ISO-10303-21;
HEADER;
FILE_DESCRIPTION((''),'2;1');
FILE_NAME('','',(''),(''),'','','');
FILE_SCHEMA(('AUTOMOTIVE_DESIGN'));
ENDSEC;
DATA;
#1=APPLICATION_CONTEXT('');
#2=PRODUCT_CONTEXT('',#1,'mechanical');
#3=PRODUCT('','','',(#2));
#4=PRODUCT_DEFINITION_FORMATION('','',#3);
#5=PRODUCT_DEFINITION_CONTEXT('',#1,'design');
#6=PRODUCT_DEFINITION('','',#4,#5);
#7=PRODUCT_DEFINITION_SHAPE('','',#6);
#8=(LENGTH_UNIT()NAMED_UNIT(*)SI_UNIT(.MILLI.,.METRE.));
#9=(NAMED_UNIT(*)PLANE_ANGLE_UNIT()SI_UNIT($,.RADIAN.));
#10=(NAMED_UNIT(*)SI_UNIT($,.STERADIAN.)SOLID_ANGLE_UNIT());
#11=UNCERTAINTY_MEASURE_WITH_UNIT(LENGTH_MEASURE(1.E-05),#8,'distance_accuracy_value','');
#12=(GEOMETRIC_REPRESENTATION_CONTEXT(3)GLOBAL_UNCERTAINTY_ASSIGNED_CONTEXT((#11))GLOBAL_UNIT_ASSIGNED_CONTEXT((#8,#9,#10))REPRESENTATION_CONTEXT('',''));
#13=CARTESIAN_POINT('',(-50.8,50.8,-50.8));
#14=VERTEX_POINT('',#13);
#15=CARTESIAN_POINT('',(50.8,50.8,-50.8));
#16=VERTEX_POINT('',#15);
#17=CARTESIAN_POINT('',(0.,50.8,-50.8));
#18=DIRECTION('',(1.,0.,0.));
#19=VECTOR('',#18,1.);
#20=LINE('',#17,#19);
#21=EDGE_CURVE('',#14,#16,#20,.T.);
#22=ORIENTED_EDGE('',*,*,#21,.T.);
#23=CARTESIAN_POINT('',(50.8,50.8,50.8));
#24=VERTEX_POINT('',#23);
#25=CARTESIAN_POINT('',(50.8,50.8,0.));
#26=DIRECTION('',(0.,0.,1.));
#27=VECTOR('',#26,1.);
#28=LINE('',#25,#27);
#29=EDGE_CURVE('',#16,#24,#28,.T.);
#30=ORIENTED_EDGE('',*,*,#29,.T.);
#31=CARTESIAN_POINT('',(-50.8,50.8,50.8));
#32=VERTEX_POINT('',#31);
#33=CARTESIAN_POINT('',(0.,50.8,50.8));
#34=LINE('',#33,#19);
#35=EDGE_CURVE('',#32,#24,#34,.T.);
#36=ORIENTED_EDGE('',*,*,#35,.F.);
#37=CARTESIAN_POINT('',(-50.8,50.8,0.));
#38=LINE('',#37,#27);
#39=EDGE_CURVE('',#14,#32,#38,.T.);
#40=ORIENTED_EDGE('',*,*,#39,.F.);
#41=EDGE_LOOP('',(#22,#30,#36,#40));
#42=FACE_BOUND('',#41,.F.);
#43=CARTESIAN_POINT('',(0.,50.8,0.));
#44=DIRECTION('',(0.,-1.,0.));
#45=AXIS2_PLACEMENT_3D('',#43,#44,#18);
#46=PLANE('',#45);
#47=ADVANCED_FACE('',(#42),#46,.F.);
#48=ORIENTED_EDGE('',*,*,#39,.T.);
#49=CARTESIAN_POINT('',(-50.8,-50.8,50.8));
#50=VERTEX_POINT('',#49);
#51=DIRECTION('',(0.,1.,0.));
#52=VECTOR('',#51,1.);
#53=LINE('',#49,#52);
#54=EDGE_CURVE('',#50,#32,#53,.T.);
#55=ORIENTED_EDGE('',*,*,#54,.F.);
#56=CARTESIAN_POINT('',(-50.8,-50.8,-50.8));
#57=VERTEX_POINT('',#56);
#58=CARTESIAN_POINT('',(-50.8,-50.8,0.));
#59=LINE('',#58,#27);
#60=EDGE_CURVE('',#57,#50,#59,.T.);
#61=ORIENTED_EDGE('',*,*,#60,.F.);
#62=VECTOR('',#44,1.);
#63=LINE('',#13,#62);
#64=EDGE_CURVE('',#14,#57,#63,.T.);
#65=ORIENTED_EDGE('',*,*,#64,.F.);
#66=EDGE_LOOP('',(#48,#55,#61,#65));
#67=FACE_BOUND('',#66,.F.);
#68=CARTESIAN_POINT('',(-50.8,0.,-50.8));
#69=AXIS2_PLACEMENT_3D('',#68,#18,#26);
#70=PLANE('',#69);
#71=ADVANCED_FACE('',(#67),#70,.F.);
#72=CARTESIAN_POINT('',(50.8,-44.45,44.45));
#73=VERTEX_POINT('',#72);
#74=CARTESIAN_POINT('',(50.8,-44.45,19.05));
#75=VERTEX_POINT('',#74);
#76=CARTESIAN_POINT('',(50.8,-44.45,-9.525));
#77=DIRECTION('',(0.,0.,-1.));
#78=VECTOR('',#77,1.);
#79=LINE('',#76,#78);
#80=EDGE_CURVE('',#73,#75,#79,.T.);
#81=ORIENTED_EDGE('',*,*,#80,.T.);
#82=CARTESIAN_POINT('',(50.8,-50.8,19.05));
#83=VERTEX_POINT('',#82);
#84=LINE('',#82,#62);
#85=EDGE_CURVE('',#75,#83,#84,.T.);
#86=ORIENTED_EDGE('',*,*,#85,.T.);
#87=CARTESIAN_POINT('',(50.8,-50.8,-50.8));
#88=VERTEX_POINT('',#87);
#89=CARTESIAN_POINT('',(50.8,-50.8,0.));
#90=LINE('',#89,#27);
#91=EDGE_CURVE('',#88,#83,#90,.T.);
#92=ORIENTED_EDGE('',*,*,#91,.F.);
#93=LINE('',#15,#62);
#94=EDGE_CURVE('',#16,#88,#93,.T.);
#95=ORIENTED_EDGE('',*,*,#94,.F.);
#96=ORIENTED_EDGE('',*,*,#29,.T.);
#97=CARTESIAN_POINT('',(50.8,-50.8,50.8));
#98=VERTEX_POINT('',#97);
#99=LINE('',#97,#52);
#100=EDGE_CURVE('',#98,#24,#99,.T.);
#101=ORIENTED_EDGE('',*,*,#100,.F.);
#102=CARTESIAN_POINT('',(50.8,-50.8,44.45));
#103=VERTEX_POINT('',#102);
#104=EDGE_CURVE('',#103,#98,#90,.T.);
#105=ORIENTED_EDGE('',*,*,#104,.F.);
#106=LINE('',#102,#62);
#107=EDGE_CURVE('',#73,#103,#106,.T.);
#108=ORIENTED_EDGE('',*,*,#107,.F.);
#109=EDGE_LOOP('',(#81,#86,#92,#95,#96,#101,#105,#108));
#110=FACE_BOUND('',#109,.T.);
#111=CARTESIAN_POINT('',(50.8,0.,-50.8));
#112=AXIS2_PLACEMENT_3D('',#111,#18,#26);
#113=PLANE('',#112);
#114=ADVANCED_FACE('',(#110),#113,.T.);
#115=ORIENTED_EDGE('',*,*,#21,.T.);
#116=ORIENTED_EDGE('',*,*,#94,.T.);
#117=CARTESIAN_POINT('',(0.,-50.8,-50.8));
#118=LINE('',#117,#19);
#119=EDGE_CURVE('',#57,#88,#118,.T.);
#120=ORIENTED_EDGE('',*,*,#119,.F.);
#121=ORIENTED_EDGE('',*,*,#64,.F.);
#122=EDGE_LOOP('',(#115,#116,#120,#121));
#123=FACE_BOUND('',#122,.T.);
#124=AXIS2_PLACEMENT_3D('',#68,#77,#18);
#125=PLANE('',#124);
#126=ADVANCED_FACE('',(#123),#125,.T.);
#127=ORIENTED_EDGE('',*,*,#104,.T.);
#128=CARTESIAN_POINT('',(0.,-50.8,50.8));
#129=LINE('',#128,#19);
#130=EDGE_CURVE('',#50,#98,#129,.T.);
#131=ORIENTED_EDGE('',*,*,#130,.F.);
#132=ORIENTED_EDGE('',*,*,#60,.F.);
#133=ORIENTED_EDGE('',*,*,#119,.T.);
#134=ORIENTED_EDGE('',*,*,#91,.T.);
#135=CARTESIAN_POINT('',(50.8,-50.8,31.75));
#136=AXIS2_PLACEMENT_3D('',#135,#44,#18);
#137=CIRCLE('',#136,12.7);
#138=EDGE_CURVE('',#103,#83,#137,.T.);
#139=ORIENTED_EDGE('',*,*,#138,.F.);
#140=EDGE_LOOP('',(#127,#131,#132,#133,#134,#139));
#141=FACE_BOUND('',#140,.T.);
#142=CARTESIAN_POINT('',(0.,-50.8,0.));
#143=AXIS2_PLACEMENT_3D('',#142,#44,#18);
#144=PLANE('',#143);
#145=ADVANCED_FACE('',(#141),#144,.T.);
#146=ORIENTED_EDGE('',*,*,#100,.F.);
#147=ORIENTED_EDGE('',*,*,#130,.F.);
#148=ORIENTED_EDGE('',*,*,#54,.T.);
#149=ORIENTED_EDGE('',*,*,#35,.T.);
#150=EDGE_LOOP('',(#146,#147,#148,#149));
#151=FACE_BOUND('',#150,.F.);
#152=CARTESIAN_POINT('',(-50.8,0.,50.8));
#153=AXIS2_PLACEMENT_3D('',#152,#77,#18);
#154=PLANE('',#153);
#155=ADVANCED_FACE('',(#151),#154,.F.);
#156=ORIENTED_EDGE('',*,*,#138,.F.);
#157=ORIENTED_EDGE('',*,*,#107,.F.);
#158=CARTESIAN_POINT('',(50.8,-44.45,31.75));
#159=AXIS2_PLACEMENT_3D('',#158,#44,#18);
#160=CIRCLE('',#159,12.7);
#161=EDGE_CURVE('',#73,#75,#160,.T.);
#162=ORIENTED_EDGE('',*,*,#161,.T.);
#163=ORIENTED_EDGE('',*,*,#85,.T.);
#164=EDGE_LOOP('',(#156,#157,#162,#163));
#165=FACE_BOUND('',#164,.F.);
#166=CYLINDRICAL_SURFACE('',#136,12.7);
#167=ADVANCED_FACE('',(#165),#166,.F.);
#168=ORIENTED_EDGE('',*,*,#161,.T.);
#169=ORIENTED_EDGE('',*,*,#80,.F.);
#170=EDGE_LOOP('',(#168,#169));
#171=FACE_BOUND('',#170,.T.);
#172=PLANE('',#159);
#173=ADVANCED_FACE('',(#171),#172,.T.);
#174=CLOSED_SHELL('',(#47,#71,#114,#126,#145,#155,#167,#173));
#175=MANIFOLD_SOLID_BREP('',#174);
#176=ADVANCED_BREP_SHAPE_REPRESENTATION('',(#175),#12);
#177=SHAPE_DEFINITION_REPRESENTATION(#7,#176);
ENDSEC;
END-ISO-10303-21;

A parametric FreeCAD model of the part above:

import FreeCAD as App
import Part
import Sketcher
from FreeCAD import Vector
Q = App.Units.Quantity

doc = App.newDocument("Part")
params = doc.addObject("Spreadsheet::Sheet", "Params")
for row, (alias, value) in enumerate([
    ("sketch1_width", "4 in"),
    ("pad1_length", "4 in"),
    ("sketch2_diameter", "1 in"),
    ("pocket1_length", "0.25 in"),
], start=1):
    params.set(f"A{row}", alias)
    params.set(f"B{row}", "=" + value)
    params.setAlias(f"B{row}", alias)

body = doc.addObject("PartDesign::Body", "Body")

# Sketch on XZ plane
sketch1 = doc.addObject("Sketcher::SketchObject", "Sketch")
body.addObject(sketch1)
sketch1.AttachmentSupport = (doc.XZ_Plane, [""])
sketch1.MapMode = "FlatFace"
sketch1.addGeometry(Part.LineSegment(Vector(-51, 51, 0), Vector(-51, -51, 0)), False)
sketch1.addGeometry(Part.LineSegment(Vector(-51, -51, 0), Vector(51, -51, 0)), False)
sketch1.addGeometry(Part.LineSegment(Vector(51, -51, 0), Vector(51, 51, 0)), False)
sketch1.addGeometry(Part.LineSegment(Vector(51, 51, 0), Vector(-51, 51, 0)), False)
sketch1.addConstraint(Sketcher.Constraint("Coincident", 0, 2, 1, 1))
sketch1.addConstraint(Sketcher.Constraint("Coincident", 1, 2, 2, 1))
sketch1.addConstraint(Sketcher.Constraint("Coincident", 2, 2, 3, 1))
sketch1.addConstraint(Sketcher.Constraint("Coincident", 3, 2, 0, 1))
sketch1.addConstraint(Sketcher.Constraint("Vertical", 0))
sketch1.addConstraint(Sketcher.Constraint("Horizontal", 1))
sketch1.addConstraint(Sketcher.Constraint("Vertical", 2))
sketch1.addConstraint(Sketcher.Constraint("Horizontal", 3))
sketch1.addConstraint(Sketcher.Constraint("Symmetric", 0, 2, 2, 2, -1, 1))
sketch1.addConstraint(Sketcher.Constraint("Equal", 3, 0))
sketch1.addConstraint(Sketcher.Constraint("DistanceX", 1, 1, 1, 2, Q("4 in")))
sketch1.setExpression("Constraints[10]", "Params.sketch1_width")
pad1 = doc.addObject("PartDesign::Pad", "Pad")
body.addObject(pad1)
pad1.Profile = sketch1
pad1.setExpression("Length", "Params.pad1_length")
pad1.Midplane = True

# Sketch on XZ plane
sketch2 = doc.addObject("Sketcher::SketchObject", "Sketch001")
body.addObject(sketch2)
sketch2.AttachmentSupport = (doc.XZ_Plane, [""])
sketch2.MapMode = "FlatFace"
sketch2.AttachmentOffset = App.Placement(Vector(0, 0, 2 * 25.4), App.Rotation())
sketch2.addGeometry(Part.Circle(Vector(51, 32, 0), Vector(0, 0, 1), 13), False)
sketch2.addConstraint(Sketcher.Constraint("Diameter", 0, Q("1 in")))
sketch2.addConstraint(Sketcher.Constraint("DistanceX", -1, 1, 0, 3, Q("2 in")))
sketch2.addConstraint(Sketcher.Constraint("DistanceY", -1, 1, 0, 3, Q("1.25 in")))
sketch2.setExpression("Constraints[0]", "Params.sketch2_diameter")
pocket1 = doc.addObject("PartDesign::Pocket", "Pocket")
body.addObject(pocket1)
pocket1.Profile = sketch2
pocket1.setExpression("Length", "Params.pocket1_length")

doc.recompute()
